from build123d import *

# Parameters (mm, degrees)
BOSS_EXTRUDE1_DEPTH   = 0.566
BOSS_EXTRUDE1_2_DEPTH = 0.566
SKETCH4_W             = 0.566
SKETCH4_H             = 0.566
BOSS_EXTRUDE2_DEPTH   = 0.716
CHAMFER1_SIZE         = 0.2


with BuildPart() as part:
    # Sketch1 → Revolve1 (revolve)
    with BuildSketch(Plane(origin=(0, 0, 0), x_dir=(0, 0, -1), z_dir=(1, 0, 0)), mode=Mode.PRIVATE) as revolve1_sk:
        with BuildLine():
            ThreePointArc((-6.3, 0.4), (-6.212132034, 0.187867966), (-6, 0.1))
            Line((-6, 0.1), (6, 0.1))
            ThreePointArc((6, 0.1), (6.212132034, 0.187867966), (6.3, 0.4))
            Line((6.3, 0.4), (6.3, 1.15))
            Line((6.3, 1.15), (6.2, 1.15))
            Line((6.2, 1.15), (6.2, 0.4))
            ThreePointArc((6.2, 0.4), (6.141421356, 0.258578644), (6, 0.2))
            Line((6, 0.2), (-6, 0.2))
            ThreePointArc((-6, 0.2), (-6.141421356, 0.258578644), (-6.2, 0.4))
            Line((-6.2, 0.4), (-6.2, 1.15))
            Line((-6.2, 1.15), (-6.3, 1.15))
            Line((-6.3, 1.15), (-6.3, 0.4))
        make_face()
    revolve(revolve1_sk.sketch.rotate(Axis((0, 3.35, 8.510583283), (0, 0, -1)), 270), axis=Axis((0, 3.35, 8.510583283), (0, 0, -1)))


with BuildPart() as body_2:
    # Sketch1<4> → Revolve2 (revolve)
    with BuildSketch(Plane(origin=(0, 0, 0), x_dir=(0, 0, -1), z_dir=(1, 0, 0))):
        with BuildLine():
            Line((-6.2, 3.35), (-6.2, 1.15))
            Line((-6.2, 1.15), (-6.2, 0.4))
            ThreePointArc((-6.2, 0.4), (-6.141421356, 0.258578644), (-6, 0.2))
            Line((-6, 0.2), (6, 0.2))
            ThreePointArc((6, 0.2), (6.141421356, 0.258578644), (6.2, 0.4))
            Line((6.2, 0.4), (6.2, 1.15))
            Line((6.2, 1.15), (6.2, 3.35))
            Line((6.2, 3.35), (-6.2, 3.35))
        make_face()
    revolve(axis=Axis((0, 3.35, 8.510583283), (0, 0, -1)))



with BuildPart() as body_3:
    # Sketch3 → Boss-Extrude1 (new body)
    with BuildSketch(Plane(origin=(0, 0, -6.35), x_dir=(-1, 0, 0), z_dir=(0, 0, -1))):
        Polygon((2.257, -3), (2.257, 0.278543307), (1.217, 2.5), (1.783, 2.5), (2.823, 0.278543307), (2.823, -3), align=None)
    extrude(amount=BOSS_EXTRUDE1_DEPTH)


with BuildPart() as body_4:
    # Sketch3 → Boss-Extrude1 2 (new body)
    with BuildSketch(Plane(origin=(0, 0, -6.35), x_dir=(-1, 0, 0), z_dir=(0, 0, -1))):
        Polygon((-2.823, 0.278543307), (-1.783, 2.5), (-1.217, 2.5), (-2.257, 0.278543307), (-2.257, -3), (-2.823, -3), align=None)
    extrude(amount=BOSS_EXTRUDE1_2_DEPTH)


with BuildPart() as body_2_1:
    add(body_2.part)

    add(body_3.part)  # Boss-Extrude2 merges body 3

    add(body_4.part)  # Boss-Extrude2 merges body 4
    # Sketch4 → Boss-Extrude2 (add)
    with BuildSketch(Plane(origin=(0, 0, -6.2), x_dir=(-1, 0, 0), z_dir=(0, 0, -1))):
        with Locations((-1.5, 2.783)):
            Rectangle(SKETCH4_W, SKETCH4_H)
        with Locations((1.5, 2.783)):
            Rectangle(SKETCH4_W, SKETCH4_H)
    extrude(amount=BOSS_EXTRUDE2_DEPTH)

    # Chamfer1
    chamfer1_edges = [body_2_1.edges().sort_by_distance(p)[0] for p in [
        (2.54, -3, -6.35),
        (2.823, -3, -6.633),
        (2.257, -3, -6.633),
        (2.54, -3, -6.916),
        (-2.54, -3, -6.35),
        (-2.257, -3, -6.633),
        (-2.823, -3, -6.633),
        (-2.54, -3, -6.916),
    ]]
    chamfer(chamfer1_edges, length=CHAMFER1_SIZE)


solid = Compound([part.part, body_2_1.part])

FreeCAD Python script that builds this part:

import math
import FreeCAD as App
import Part
import Sketcher
Q = App.Units.Quantity


def edges_at(feature, points):
    """Names of the edges that pass closest to the given points."""
    edges = feature.Shape.Edges
    near = lambda p: min(range(len(edges)), key=lambda i: edges[i].distToShape(Part.Vertex(*p))[0])
    return sorted({f"Edge{near(p) + 1}" for p in points})


def add_polygon(sketch, points):
    """Adds a closed chain of lines whose ends are joined by coincident constraints."""
    first, n = sketch.GeometryCount, len(points)
    for a, b in zip(points, points[1:] + points[:1]):
        sketch.addGeometry(Part.LineSegment(App.Vector(*a, 0), App.Vector(*b, 0)), False)
    for i in range(n):
        sketch.addConstraint(Sketcher.Constraint("Coincident", first + i, 2, first + (i + 1) % n, 1))

doc = App.newDocument("Part")
body = doc.addObject("PartDesign::Body", "Body")

sketch1 = body.newObject("Sketcher::SketchObject", "Sketch")
sketch1.AttachmentSupport = (doc.getObject("YZ_Plane"), [""])
sketch1.MapMode = "FlatFace"
sketch1.addGeometry([
    Part.ArcOfCircle(Part.Circle(App.Vector(0.4, 6, 0), App.Vector(0, 0, 1), 0.3), math.radians(90), math.radians(180)),
    Part.LineSegment(App.Vector(0.1, 6, 0), App.Vector(0.1, -6, 0)),
    Part.ArcOfCircle(Part.Circle(App.Vector(0.4, -6, 0), App.Vector(0, 0, 1), 0.3), math.radians(-180), math.radians(-90)),
    Part.LineSegment(App.Vector(0.4, -6.3, 0), App.Vector(1.15, -6.3, 0)),
    Part.LineSegment(App.Vector(1.15, -6.3, 0), App.Vector(1.15, -6.2, 0)),
    Part.LineSegment(App.Vector(1.15, -6.2, 0), App.Vector(0.4, -6.2, 0)),
    Part.ArcOfCircle(Part.Circle(App.Vector(0.4, -6, 0), App.Vector(0, 0, 1), 0.2), math.radians(-180), math.radians(-90)),
    Part.LineSegment(App.Vector(0.2, -6, 0), App.Vector(0.2, 6, 0)),
    Part.ArcOfCircle(Part.Circle(App.Vector(0.4, 6, 0), App.Vector(0, 0, 1), 0.2), math.radians(90), math.radians(180)),
    Part.LineSegment(App.Vector(0.4, 6.2, 0), App.Vector(1.15, 6.2, 0)),
    Part.LineSegment(App.Vector(1.15, 6.2, 0), App.Vector(1.15, 6.3, 0)),
    Part.LineSegment(App.Vector(1.15, 6.3, 0), App.Vector(0.4, 6.3, 0)),
], False)
sketch1.addGeometry(Part.LineSegment(App.Vector(3.35, 6.3, 0), App.Vector(3.35, -6.3, 0)), True)
sketch1.addConstraint([
    Sketcher.Constraint("Tangent", 0, 2, 1, 1),
    Sketcher.Constraint("Tangent", 1, 2, 2, 1),
    Sketcher.Constraint("Tangent", 2, 2, 3, 1),
    Sketcher.Constraint("Coincident", 3, 2, 4, 1),
    Sketcher.Constraint("Coincident", 4, 2, 5, 1),
    Sketcher.Constraint("Tangent", 5, 2, 6, 2),
    Sketcher.Constraint("Tangent", 6, 1, 7, 1),
    Sketcher.Constraint("Tangent", 7, 2, 8, 2),
    Sketcher.Constraint("Tangent", 8, 1, 9, 1),
    Sketcher.Constraint("Coincident", 9, 2, 10, 1),
    Sketcher.Constraint("Coincident", 10, 2, 11, 1),
    Sketcher.Constraint("Tangent", 11, 2, 0, 1),
    Sketcher.Constraint("Vertical", 1),
    Sketcher.Constraint("Horizontal", 3),
    Sketcher.Constraint("Vertical", 4),
    Sketcher.Constraint("Horizontal", 5),
    Sketcher.Constraint("Vertical", 7),
    Sketcher.Constraint("Horizontal", 9),
    Sketcher.Constraint("Vertical", 10),
    Sketcher.Constraint("Horizontal", 11),
    Sketcher.Constraint("Vertical", 12),
    Sketcher.Constraint("Coincident", 6, 3, 2, 3),
    Sketcher.Constraint("Coincident", 8, 3, 0, 3),
    Sketcher.Constraint("Equal", 0, 2),
    Sketcher.Constraint("Symmetric", 4, 2, 9, 2, -1),
    Sketcher.Constraint("Horizontal", 11, 2, 12, 1),
    Sketcher.Constraint("Horizontal", 3, 2, 12, 2),
    Sketcher.Constraint("Radius", 0, Q("0.3 mm")),
    Sketcher.Constraint("Radius", 6, Q("0.2 mm")),
    Sketcher.Constraint("DistanceY", 1, 2, 1, 1, Q("12 mm")),
    Sketcher.Constraint("DistanceX", 3, 1, 3, 2, Q("0.75 mm")),
    Sketcher.Constraint("DistanceX", -1, 1, 0, 3, Q("0.4 mm")),
    Sketcher.Constraint("DistanceX", 10, 2, 12, 1, Q("2.2 mm")),
])
revolution = body.newObject("PartDesign::Revolution", "Revolution")
revolution.Profile = sketch1
revolution.ReferenceAxis = (sketch1, ["Axis0"])
revolution.Angle = 360
body2 = doc.addObject("PartDesign::Body", "Body001")

sketch2 = body2.newObject("Sketcher::SketchObject", "Sketch001")
sketch2.AttachmentSupport = (doc.getObject("YZ_Plane001"), [""])
sketch2.MapMode = "FlatFace"
sketch2.addGeometry([
    Part.LineSegment(App.Vector(3.35, 6.2, 0), App.Vector(0.4, 6.2, 0)),
    Part.ArcOfCircle(Part.Circle(App.Vector(0.4, 6, 0), App.Vector(0, 0, 1), 0.2), math.radians(90), math.radians(180)),
    Part.LineSegment(App.Vector(0.2, 6, 0), App.Vector(0.2, -6, 0)),
    Part.ArcOfCircle(Part.Circle(App.Vector(0.4, -6, 0), App.Vector(0, 0, 1), 0.2), math.radians(-180), math.radians(-90)),
    Part.LineSegment(App.Vector(0.4, -6.2, 0), App.Vector(3.35, -6.2, 0)),
    Part.LineSegment(App.Vector(3.35, -6.2, 0), App.Vector(3.35, 6.2, 0)),
], False)
sketch2.addGeometry(Part.LineSegment(App.Vector(3.35, 6.2, 0), App.Vector(3.35, -6.2, 0)), True)
sketch2.addConstraint([
    Sketcher.Constraint("Tangent", 0, 2, 1, 1),
    Sketcher.Constraint("Tangent", 1, 2, 2, 1),
    Sketcher.Constraint("Tangent", 2, 2, 3, 1),
    Sketcher.Constraint("Tangent", 3, 2, 4, 1),
    Sketcher.Constraint("Coincident", 4, 2, 5, 1),
    Sketcher.Constraint("Coincident", 5, 2, 0, 1),
    Sketcher.Constraint("Horizontal", 0),
    Sketcher.Constraint("Vertical", 2),
    Sketcher.Constraint("Horizontal", 4),
    Sketcher.Constraint("Vertical", 5),
    Sketcher.Constraint("Vertical", 6),
    Sketcher.Constraint("Coincident", 6, 1, 5, 2),
    Sketcher.Constraint("Equal", 1, 3),
    Sketcher.Constraint("Horizontal", 3, 2, 6, 2),
    Sketcher.Constraint("Radius", 1, Q("0.2 mm")),
    Sketcher.Constraint("DistanceY", 2, 2, 2, 1, Q("12 mm")),
    Sketcher.Constraint("DistanceY", -1, 1, 1, 3, Q("6 mm")),
    Sketcher.Constraint("DistanceX", 0, 2, 0, 1, Q("2.95 mm")),
    Sketcher.Constraint("DistanceX", -1, 1, 1, 3, Q("0.4 mm")),
])
revolution2 = body2.newObject("PartDesign::Revolution", "Revolution001")
revolution2.Profile = sketch2
revolution2.ReferenceAxis = (sketch2, ["Axis0"])
revolution2.Angle = 360
body3 = doc.addObject("PartDesign::Body", "Body002")

sketch3 = body3.newObject("Sketcher::SketchObject", "Sketch002")
sketch3.AttachmentSupport = (doc.getObject("XY_Plane002"), [""])
sketch3.MapMode = "FlatFace"
sketch3.AttachmentOffset = App.Placement(App.Vector(0, 0, -6.35), App.Rotation())
add_polygon(sketch3, [(-2.3, 0.3), (-2.3, -3), (-2.8, -3), (-2.8, 0.3), (-1.8, 2.5), (-1.2, 2.5)])
sketch3.addConstraint([
    Sketcher.Constraint("Vertical", 0),
    Sketcher.Constraint("Horizontal", 1),
    Sketcher.Constraint("Vertical", 2),
    Sketcher.Constraint("Horizontal", 4),
    Sketcher.Constraint("Parallel", 3, 5),
    Sketcher.Constraint("Horizontal", 2, 2, 5, 2),
    Sketcher.Constraint("DistanceY", 0, 2, -1, 1, Q("3 mm")),
    Sketcher.Constraint("DistanceY", -1, 1, 3, 2, Q("2.5 mm")),
    Sketcher.Constraint("DistanceX", 1, 2, 1, 1, Q("0.566 mm")),
    Sketcher.Constraint("DistanceX", 2, 2, 3, 2, Q("1.04 mm")),
    Sketcher.Constraint("DistanceX", 0, 2, -1, 1, Q("2.257 mm")),
    Sketcher.Constraint("Distance", 3, Q("2.452849 mm")),
])
pad1 = body3.newObject("PartDesign::Pad", "Pad")
pad1.Profile = sketch3
pad1.Length = 0.566
pad1.Reversed = True
body4 = doc.addObject("PartDesign::Body", "Body003")

sketch4 = body4.newObject("Sketcher::SketchObject", "Sketch003")
sketch4.AttachmentSupport = (doc.getObject("XY_Plane003"), [""])
sketch4.MapMode = "FlatFace"
sketch4.AttachmentOffset = App.Placement(App.Vector(0, 0, -6.35), App.Rotation())
add_polygon(sketch4, [(1.8, 2.5), (2.8, 0.3), (2.8, -3), (2.3, -3), (2.3, 0.3), (1.2, 2.5)])
sketch4.addConstraint([
    Sketcher.Constraint("Vertical", 1),
    Sketcher.Constraint("Horizontal", 2),
    Sketcher.Constraint("Vertical", 3),
    Sketcher.Constraint("Horizontal", 5),
    Sketcher.Constraint("Parallel", 0, 4),
    Sketcher.Constraint("Horizontal", 0, 2, 3, 2),
    Sketcher.Constraint("DistanceY", 1, 2, -1, 1, Q("3 mm")),
    Sketcher.Constraint("DistanceY", -1, 1, 4, 2, Q("2.5 mm")),
    Sketcher.Constraint("DistanceX", 2, 2, 2, 1, Q("0.566 mm")),
    Sketcher.Constraint("DistanceX", 4, 2, 3, 2, Q("1.04 mm")),
    Sketcher.Constraint("DistanceX", -1, 1, 0, 2, Q("2.823 mm")),
    Sketcher.Constraint("Distance", 0, Q("2.452849 mm")),
])
pad2 = body4.newObject("PartDesign::Pad", "Pad001")
pad2.Profile = sketch4
pad2.Length = 0.566
pad2.Reversed = True
body2.AllowCompound = True
doc.recompute()

boolean = body2.newObject("PartDesign::Boolean", "Boolean")
boolean.Type = "Fuse"
boolean.addObjects([body3])
doc.recompute()

boolean2 = body2.newObject("PartDesign::Boolean", "Boolean001")
boolean2.Type = "Fuse"
boolean2.addObjects([body4])

sketch5 = body2.newObject("Sketcher::SketchObject", "Sketch004")
sketch5.AttachmentSupport = (doc.getObject("XY_Plane001"), [""])
sketch5.MapMode = "FlatFace"
sketch5.AttachmentOffset = App.Placement(App.Vector(0, 0, -6.2), App.Rotation())
add_polygon(sketch5, [(1.8, 3.1), (1.8, 2.5), (1.2, 2.5), (1.2, 3.1)])
add_polygon(sketch5, [(-1.2, 3.1), (-1.2, 2.5), (-1.8, 2.5), (-1.8, 3.1)])
sketch5.addConstraint([
    Sketcher.Constraint("Vertical", 0),
    Sketcher.Constraint("Horizontal", 1),
    Sketcher.Constraint("Vertical", 2),
    Sketcher.Constraint("Horizontal", 3),
    Sketcher.Constraint("Vertical", 4),
    Sketcher.Constraint("Horizontal", 5),
    Sketcher.Constraint("Vertical", 6),
    Sketcher.Constraint("Horizontal", 7),
    Sketcher.Constraint("Symmetric", 1, 2, 4, 2, -2),
    Sketcher.Constraint("Symmetric", 3, 2, 6, 2, -2),
    Sketcher.Constraint("Equal", 7, 0),
    Sketcher.Constraint("DistanceX", 4, 2, 0, 2, Q("3 mm")),
    Sketcher.Constraint("DistanceY", -1, 1, 0, 2, Q("2.5 mm")),
    Sketcher.Constraint("DistanceX", 1, 2, 1, 1, Q("0.566 mm")),
])
pad3 = body2.newObject("PartDesign::Pad", "Pad002")
pad3.Profile = sketch5
pad3.Length = 0.716
pad3.Reversed = True
doc.recompute()

chamfer = body2.newObject("PartDesign::Chamfer", "Chamfer")
chamfer.Base = (pad3, edges_at(pad3, [
    (2.54, -3, -6.35),
    (2.823, -3, -6.633),
    (2.257, -3, -6.633),
    (2.54, -3, -6.916),
    (-2.54, -3, -6.35),
    (-2.257, -3, -6.633),
    (-2.823, -3, -6.633),
    (-2.54, -3, -6.916),
]))
chamfer.Size = 0.2

doc.recompute()
